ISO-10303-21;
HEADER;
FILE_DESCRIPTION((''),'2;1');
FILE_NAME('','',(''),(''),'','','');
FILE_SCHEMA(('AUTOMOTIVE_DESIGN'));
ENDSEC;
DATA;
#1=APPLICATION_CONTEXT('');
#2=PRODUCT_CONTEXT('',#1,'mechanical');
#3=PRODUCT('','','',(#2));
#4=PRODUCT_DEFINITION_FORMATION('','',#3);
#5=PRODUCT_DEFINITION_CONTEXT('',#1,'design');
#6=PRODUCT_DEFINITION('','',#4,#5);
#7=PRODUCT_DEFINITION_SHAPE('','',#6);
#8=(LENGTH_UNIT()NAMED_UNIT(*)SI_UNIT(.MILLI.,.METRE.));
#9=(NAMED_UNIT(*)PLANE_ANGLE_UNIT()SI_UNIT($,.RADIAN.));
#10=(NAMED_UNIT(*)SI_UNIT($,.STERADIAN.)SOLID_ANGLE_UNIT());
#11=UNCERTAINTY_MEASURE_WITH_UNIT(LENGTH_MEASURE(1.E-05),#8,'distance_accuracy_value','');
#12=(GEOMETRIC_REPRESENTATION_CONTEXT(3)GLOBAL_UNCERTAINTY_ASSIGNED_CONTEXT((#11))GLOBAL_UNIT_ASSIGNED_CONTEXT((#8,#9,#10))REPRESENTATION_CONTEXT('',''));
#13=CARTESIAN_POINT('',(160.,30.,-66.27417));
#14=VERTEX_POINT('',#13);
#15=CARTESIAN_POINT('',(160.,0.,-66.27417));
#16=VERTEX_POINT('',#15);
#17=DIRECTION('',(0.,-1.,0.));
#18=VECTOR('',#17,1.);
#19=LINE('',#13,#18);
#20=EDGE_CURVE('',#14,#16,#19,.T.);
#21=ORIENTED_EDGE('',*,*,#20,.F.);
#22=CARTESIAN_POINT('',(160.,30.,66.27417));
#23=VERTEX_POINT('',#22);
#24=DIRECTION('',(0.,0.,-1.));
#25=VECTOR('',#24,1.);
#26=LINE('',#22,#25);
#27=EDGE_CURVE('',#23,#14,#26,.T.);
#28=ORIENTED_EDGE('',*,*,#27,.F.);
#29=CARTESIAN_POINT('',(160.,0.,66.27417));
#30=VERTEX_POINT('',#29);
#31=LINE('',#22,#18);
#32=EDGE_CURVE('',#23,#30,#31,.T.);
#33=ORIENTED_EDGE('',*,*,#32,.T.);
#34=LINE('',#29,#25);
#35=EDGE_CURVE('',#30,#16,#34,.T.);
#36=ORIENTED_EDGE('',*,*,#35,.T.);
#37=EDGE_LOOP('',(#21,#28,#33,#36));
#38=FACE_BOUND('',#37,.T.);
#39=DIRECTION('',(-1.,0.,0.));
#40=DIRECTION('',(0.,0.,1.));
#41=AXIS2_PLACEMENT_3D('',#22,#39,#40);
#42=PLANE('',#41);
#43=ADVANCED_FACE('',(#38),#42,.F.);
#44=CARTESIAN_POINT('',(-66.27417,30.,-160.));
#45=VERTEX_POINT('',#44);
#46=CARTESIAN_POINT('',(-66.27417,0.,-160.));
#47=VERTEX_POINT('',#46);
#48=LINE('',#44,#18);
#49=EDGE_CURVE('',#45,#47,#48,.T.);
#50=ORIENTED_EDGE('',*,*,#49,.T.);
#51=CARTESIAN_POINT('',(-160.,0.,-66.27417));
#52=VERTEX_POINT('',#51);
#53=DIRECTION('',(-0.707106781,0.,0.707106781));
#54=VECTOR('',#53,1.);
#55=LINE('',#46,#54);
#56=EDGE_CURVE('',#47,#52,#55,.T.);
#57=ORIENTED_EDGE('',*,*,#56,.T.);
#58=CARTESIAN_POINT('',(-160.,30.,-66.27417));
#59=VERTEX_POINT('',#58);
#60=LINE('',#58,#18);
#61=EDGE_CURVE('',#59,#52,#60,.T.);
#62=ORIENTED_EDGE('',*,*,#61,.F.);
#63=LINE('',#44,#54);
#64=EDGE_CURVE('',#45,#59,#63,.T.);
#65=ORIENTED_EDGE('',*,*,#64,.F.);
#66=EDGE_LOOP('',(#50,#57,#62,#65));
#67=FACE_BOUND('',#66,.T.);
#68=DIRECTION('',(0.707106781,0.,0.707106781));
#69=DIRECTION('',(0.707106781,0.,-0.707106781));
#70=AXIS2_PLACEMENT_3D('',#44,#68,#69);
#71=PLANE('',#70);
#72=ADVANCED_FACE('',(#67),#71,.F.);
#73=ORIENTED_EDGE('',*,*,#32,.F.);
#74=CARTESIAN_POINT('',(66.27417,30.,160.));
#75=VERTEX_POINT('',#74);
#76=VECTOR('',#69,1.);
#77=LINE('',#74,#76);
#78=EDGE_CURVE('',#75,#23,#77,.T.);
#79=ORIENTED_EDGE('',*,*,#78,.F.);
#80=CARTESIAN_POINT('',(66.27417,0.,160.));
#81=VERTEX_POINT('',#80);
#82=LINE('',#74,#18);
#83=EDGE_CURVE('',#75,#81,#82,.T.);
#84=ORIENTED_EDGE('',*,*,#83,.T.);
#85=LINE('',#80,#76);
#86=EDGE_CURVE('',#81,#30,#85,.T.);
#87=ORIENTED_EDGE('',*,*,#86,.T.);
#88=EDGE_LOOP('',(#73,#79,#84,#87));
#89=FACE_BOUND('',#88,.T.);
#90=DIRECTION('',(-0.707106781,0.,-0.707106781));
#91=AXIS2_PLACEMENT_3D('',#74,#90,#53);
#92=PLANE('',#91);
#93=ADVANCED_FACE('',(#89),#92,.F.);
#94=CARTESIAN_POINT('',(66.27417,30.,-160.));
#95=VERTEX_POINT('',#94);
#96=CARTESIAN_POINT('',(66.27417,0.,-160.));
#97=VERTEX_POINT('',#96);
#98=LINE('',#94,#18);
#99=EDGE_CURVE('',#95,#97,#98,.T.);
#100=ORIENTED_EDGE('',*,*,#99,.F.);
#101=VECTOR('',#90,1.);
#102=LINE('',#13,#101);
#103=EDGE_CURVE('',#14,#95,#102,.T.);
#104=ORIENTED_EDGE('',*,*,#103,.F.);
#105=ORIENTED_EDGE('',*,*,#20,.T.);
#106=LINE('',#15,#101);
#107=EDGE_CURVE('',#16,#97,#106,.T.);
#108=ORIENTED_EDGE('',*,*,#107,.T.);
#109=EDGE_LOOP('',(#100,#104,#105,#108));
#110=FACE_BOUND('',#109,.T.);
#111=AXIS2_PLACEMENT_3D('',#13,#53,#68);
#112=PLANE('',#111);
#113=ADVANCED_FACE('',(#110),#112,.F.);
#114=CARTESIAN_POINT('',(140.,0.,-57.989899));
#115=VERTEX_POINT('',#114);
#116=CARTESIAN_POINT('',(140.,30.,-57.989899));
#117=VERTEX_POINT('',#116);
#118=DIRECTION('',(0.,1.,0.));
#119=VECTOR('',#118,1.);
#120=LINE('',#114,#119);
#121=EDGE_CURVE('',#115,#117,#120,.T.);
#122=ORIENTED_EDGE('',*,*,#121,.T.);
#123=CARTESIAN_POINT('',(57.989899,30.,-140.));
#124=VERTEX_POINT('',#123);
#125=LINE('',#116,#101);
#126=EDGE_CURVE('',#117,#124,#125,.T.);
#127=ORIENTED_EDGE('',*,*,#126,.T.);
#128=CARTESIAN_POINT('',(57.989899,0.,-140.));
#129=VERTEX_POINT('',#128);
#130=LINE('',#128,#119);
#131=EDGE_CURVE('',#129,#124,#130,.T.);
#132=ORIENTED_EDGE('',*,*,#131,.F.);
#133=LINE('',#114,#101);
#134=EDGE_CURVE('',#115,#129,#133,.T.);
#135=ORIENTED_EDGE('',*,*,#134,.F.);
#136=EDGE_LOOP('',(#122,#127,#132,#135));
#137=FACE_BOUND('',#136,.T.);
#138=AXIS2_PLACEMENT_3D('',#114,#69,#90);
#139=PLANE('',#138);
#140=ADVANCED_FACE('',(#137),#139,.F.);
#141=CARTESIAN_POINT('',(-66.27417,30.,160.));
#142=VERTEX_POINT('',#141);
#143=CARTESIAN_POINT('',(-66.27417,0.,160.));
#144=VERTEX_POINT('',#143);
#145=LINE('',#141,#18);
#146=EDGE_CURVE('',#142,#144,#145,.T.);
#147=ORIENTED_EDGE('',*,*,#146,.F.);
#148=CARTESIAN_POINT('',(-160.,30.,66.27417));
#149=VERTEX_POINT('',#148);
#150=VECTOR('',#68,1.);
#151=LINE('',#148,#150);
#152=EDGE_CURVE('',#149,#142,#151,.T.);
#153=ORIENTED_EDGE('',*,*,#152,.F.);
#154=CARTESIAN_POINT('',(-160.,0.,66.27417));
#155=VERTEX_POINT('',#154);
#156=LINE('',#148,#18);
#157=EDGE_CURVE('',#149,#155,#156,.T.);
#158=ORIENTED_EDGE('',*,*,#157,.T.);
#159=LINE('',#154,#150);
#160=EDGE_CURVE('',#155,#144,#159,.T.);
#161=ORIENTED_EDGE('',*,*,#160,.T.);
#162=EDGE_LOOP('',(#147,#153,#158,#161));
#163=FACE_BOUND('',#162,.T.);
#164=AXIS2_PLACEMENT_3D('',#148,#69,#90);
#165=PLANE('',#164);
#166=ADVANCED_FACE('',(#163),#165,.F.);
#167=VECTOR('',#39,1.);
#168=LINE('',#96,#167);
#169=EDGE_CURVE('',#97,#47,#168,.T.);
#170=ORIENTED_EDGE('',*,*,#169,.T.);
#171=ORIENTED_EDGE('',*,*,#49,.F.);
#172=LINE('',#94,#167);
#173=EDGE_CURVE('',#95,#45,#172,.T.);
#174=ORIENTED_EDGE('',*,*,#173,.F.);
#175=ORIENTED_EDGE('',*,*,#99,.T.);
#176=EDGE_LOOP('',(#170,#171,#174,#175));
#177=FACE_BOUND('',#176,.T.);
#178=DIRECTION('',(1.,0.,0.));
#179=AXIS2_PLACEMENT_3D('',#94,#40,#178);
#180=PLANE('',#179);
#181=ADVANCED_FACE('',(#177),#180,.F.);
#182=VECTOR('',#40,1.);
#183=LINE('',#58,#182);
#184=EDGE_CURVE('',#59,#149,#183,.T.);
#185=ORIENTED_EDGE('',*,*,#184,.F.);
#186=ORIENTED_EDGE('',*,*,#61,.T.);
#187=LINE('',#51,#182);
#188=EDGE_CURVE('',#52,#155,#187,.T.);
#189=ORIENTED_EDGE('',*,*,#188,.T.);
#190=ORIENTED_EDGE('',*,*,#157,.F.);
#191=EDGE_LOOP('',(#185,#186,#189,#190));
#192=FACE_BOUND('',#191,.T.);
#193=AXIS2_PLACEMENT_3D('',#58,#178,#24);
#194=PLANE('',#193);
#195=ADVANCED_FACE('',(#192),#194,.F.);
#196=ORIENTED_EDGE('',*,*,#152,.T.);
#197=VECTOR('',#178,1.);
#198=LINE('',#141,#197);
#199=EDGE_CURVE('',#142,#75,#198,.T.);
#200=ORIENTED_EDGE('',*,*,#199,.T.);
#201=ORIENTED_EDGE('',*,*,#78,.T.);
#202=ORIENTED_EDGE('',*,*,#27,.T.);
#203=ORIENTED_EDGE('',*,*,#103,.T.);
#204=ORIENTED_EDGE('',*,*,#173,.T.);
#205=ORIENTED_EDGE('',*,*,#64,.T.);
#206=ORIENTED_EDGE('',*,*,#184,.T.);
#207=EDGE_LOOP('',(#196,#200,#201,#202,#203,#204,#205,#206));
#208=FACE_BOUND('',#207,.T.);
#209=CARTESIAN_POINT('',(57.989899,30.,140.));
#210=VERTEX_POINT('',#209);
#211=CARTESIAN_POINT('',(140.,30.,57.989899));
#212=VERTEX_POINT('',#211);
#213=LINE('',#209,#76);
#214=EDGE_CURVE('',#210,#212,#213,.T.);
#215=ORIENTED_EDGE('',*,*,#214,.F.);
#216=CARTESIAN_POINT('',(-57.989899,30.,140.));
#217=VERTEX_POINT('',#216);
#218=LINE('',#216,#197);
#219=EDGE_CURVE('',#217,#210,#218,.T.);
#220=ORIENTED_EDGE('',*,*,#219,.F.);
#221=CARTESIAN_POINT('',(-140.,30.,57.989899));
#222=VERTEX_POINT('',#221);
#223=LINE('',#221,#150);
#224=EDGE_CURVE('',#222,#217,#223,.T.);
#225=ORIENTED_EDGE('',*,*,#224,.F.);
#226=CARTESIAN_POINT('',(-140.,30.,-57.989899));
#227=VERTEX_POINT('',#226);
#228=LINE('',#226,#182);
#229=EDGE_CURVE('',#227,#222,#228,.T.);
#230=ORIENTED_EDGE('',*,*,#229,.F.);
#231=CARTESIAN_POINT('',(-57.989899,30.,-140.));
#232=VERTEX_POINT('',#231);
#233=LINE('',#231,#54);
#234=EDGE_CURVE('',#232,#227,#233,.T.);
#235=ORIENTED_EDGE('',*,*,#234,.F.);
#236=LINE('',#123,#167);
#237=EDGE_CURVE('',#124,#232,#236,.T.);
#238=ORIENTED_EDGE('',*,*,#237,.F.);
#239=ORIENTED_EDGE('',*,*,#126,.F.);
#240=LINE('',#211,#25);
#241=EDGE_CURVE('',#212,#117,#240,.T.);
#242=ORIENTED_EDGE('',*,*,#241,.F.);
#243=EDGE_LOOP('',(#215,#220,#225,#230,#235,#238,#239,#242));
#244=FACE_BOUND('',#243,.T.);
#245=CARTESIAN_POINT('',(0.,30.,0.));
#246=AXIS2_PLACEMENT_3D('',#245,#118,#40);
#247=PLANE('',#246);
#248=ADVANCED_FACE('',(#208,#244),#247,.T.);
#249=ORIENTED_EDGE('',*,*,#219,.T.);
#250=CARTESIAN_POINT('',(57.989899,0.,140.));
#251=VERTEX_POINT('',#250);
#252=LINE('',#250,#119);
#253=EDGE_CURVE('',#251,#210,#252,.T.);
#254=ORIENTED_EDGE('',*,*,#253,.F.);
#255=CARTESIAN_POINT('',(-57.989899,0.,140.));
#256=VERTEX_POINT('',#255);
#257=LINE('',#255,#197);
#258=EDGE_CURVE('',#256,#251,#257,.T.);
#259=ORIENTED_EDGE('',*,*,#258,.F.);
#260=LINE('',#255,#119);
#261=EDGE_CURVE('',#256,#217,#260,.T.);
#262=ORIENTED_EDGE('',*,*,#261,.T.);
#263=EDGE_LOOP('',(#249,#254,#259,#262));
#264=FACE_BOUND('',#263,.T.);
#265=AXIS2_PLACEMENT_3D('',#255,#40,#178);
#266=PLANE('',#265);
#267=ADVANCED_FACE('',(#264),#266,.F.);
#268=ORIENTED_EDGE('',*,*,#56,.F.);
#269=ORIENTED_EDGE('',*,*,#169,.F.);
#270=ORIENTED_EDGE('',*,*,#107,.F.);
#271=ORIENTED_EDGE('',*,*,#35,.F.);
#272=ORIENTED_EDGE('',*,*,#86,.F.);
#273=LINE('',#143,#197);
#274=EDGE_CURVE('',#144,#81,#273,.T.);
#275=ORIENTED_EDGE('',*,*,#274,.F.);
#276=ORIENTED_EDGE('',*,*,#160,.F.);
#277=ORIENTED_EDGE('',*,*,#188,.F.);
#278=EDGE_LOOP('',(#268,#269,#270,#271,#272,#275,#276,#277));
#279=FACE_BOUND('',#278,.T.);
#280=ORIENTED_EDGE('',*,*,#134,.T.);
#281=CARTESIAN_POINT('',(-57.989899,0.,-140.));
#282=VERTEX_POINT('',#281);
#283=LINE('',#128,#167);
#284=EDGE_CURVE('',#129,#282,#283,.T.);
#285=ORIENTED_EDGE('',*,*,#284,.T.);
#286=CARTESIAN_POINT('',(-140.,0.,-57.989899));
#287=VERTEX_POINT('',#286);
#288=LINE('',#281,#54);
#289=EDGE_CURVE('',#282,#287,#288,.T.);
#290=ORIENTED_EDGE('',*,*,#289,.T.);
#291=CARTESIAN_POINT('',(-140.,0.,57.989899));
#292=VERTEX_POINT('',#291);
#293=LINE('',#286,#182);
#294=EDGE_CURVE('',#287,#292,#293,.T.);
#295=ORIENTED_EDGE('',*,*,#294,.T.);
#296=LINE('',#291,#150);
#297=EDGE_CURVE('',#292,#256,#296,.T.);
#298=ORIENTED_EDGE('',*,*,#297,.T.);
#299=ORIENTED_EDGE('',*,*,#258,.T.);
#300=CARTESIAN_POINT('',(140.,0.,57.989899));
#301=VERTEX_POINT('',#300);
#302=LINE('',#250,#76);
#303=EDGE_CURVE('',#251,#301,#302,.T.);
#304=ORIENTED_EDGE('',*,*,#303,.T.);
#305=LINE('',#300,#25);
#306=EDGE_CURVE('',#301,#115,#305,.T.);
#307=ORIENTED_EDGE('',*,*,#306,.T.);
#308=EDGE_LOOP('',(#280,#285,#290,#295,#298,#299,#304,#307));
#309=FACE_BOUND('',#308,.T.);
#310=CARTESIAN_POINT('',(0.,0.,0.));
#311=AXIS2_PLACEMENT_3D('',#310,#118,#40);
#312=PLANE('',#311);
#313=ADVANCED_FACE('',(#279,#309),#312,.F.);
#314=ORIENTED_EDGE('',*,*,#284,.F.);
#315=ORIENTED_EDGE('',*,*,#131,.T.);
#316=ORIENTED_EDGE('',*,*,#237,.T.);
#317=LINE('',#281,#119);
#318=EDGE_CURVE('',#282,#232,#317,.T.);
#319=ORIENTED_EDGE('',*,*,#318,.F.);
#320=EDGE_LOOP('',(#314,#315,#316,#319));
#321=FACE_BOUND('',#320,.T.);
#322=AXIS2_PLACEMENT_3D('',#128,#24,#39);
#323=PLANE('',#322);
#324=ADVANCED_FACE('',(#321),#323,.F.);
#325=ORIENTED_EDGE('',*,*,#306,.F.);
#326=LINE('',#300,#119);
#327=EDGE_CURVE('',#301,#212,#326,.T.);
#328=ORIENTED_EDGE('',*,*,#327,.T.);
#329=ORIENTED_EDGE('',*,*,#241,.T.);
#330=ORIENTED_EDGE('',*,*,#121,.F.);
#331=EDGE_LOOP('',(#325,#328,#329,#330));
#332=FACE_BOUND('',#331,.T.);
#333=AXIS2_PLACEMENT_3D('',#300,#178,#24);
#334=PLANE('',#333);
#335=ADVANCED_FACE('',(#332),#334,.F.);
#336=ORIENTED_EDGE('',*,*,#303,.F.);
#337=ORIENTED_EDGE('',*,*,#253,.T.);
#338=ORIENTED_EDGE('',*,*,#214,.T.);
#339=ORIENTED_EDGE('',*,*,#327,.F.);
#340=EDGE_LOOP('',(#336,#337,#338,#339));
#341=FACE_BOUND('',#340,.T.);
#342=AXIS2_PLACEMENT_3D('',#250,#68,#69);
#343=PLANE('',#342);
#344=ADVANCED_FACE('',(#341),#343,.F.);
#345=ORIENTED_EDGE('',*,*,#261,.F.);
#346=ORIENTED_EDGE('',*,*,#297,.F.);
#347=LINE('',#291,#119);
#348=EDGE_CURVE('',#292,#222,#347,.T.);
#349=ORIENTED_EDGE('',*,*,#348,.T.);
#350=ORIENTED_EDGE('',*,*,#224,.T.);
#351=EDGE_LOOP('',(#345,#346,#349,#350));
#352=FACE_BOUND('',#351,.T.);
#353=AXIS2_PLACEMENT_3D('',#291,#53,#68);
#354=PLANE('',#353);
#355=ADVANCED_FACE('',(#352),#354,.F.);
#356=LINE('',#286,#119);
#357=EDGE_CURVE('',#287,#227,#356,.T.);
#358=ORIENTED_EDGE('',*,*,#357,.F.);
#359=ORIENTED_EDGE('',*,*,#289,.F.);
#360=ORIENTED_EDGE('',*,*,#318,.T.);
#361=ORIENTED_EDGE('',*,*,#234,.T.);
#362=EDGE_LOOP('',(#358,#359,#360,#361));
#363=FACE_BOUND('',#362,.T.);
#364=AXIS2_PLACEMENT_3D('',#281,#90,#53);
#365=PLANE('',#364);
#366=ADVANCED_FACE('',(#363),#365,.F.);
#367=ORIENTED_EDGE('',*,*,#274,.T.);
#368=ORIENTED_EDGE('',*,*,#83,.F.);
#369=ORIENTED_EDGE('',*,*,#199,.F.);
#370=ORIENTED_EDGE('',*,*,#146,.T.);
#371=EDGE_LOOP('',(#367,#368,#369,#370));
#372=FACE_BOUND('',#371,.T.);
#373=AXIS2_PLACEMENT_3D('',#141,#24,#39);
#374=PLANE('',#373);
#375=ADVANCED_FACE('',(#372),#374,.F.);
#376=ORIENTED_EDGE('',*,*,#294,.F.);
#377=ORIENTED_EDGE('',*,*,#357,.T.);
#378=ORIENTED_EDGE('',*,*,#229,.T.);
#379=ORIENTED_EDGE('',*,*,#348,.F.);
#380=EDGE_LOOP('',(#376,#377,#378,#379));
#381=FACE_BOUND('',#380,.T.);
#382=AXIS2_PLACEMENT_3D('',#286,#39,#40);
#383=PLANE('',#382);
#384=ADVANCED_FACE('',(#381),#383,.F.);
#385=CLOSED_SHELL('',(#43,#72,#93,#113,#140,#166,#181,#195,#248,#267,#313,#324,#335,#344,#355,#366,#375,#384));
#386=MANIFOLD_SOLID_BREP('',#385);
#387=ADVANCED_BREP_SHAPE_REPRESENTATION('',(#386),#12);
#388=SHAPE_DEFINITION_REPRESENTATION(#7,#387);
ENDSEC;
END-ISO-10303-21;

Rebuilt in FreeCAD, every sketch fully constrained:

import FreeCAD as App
import Part
import Sketcher

V = App.Vector

doc = App.newDocument("Part")
params = doc.addObject("Spreadsheet::Sheet", "Params")
for row, (alias, value) in enumerate([
    ("pad1_length", "30 mm"),
    ("pocket1_length", "30 mm"),
], start=1):
    params.set(f"A{row}", alias)
    params.set(f"B{row}", "=" + value)
    params.setAlias(f"B{row}", alias)

body = doc.addObject("PartDesign::Body", "Body")

# Sketch on XZ plane
sketch1 = body.newObject("Sketcher::SketchObject", "Sketch")
sketch1.AttachmentSupport = (doc.getObject("XZ_Plane"), [""])
sketch1.MapMode = "FlatFace"
sketch1.addGeometry(Part.LineSegment(V(160, -66, 0), V(66, -160, 0)), False)
sketch1.addGeometry(Part.LineSegment(V(66, -160, 0), V(-66, -160, 0)), False)
sketch1.addGeometry(Part.LineSegment(V(-66, -160, 0), V(-160, -66, 0)), False)
sketch1.addGeometry(Part.LineSegment(V(-160, -66, 0), V(-160, 66, 0)), False)
sketch1.addGeometry(Part.LineSegment(V(-160, 66, 0), V(-66, 160, 0)), False)
sketch1.addGeometry(Part.LineSegment(V(-66, 160, 0), V(66, 160, 0)), False)
sketch1.addGeometry(Part.LineSegment(V(66, 160, 0), V(160, 66, 0)), False)
sketch1.addGeometry(Part.LineSegment(V(160, 66, 0), V(160, -66, 0)), False)
sketch1.addConstraint(Sketcher.Constraint("Coincident", 0, 2, 1, 1))
sketch1.addConstraint(Sketcher.Constraint("Coincident", 1, 2, 2, 1))
sketch1.addConstraint(Sketcher.Constraint("Coincident", 2, 2, 3, 1))
sketch1.addConstraint(Sketcher.Constraint("Coincident", 3, 2, 4, 1))
sketch1.addConstraint(Sketcher.Constraint("Coincident", 4, 2, 5, 1))
sketch1.addConstraint(Sketcher.Constraint("Coincident", 5, 2, 6, 1))
sketch1.addConstraint(Sketcher.Constraint("Coincident", 6, 2, 7, 1))
sketch1.addConstraint(Sketcher.Constraint("Coincident", 7, 2, 0, 1))
sketch1.addConstraint(Sketcher.Constraint("Horizontal", 1))
sketch1.addConstraint(Sketcher.Constraint("Vertical", 3))
sketch1.addConstraint(Sketcher.Constraint("Horizontal", 5))
sketch1.addConstraint(Sketcher.Constraint("Vertical", 7))
sketch1.addConstraint(Sketcher.Constraint("Symmetric", 0, 2, 4, 2, -1, 1))
sketch1.addConstraint(Sketcher.Constraint("Symmetric", 2, 2, 6, 2, -1, 1))
sketch1.addConstraint(Sketcher.Constraint("Perpendicular", 0, 2))
sketch1.addConstraint(Sketcher.Constraint("Perpendicular", 2, 4))
sketch1.addConstraint(Sketcher.Constraint("Perpendicular", 4, 6))
sketch1.addConstraint(Sketcher.Constraint("Horizontal", 3, 2, 6, 2))
sketch1.addConstraint(Sketcher.Constraint("Vertical", 1, 2, 4, 2))
sketch1.addConstraint(Sketcher.Constraint("Equal", 5, 3))
sketch1.addConstraint(Sketcher.Constraint("DistanceY", 0, 2, -1, 1, 160.0))
sketch1.addConstraint(Sketcher.Constraint("DistanceX", 1, 2, 1, 1, 132.54834))
pad1 = body.newObject("PartDesign::Pad", "Pad")
pad1.Profile = sketch1
pad1.setExpression("Length", "Params.pad1_length")
pad1.Reversed = True

# Sketch on XZ plane
sketch2 = body.newObject("Sketcher::SketchObject", "Sketch001")
sketch2.AttachmentSupport = (doc.getObject("XZ_Plane"), [""])
sketch2.MapMode = "FlatFace"
sketch2.AttachmentOffset = App.Placement(V(0, 0, -30), App.Rotation())
sketch2.addGeometry(Part.LineSegment(V(140, -58, 0), V(58, -140, 0)), False)
sketch2.addGeometry(Part.LineSegment(V(58, -140, 0), V(-58, -140, 0)), False)
sketch2.addGeometry(Part.LineSegment(V(-58, -140, 0), V(-140, -58, 0)), False)
sketch2.addGeometry(Part.LineSegment(V(-140, -58, 0), V(-140, 58, 0)), False)
sketch2.addGeometry(Part.LineSegment(V(-140, 58, 0), V(-58, 140, 0)), False)
sketch2.addGeometry(Part.LineSegment(V(-58, 140, 0), V(58, 140, 0)), False)
sketch2.addGeometry(Part.LineSegment(V(58, 140, 0), V(140, 58, 0)), False)
sketch2.addGeometry(Part.LineSegment(V(140, 58, 0), V(140, -58, 0)), False)
sketch2.addConstraint(Sketcher.Constraint("Coincident", 0, 2, 1, 1))
sketch2.addConstraint(Sketcher.Constraint("Coincident", 1, 2, 2, 1))
sketch2.addConstraint(Sketcher.Constraint("Coincident", 2, 2, 3, 1))
sketch2.addConstraint(Sketcher.Constraint("Coincident", 3, 2, 4, 1))
sketch2.addConstraint(Sketcher.Constraint("Coincident", 4, 2, 5, 1))
sketch2.addConstraint(Sketcher.Constraint("Coincident", 5, 2, 6, 1))
sketch2.addConstraint(Sketcher.Constraint("Coincident", 6, 2, 7, 1))
sketch2.addConstraint(Sketcher.Constraint("Coincident", 7, 2, 0, 1))
sketch2.addConstraint(Sketcher.Constraint("Horizontal", 1))
sketch2.addConstraint(Sketcher.Constraint("Vertical", 3))
sketch2.addConstraint(Sketcher.Constraint("Horizontal", 5))
sketch2.addConstraint(Sketcher.Constraint("Vertical", 7))
sketch2.addConstraint(Sketcher.Constraint("Symmetric", 0, 2, 4, 2, -1, 1))
sketch2.addConstraint(Sketcher.Constraint("Symmetric", 2, 2, 6, 2, -1, 1))
sketch2.addConstraint(Sketcher.Constraint("Perpendicular", 0, 2))
sketch2.addConstraint(Sketcher.Constraint("Perpendicular", 2, 4))
sketch2.addConstraint(Sketcher.Constraint("Perpendicular", 4, 6))
sketch2.addConstraint(Sketcher.Constraint("Horizontal", 3, 2, 6, 2))
sketch2.addConstraint(Sketcher.Constraint("Vertical", 1, 2, 4, 2))
sketch2.addConstraint(Sketcher.Constraint("Equal", 5, 3))
sketch2.addConstraint(Sketcher.Constraint("DistanceY", 0, 2, -1, 1, 140.0))
sketch2.addConstraint(Sketcher.Constraint("DistanceX", -1, 1, 0, 2, 57.989899))
pocket1 = body.newObject("PartDesign::Pocket", "Pocket")
pocket1.Profile = sketch2
pocket1.setExpression("Length", "Params.pocket1_length")
pocket1.Reversed = True

doc.recompute()
